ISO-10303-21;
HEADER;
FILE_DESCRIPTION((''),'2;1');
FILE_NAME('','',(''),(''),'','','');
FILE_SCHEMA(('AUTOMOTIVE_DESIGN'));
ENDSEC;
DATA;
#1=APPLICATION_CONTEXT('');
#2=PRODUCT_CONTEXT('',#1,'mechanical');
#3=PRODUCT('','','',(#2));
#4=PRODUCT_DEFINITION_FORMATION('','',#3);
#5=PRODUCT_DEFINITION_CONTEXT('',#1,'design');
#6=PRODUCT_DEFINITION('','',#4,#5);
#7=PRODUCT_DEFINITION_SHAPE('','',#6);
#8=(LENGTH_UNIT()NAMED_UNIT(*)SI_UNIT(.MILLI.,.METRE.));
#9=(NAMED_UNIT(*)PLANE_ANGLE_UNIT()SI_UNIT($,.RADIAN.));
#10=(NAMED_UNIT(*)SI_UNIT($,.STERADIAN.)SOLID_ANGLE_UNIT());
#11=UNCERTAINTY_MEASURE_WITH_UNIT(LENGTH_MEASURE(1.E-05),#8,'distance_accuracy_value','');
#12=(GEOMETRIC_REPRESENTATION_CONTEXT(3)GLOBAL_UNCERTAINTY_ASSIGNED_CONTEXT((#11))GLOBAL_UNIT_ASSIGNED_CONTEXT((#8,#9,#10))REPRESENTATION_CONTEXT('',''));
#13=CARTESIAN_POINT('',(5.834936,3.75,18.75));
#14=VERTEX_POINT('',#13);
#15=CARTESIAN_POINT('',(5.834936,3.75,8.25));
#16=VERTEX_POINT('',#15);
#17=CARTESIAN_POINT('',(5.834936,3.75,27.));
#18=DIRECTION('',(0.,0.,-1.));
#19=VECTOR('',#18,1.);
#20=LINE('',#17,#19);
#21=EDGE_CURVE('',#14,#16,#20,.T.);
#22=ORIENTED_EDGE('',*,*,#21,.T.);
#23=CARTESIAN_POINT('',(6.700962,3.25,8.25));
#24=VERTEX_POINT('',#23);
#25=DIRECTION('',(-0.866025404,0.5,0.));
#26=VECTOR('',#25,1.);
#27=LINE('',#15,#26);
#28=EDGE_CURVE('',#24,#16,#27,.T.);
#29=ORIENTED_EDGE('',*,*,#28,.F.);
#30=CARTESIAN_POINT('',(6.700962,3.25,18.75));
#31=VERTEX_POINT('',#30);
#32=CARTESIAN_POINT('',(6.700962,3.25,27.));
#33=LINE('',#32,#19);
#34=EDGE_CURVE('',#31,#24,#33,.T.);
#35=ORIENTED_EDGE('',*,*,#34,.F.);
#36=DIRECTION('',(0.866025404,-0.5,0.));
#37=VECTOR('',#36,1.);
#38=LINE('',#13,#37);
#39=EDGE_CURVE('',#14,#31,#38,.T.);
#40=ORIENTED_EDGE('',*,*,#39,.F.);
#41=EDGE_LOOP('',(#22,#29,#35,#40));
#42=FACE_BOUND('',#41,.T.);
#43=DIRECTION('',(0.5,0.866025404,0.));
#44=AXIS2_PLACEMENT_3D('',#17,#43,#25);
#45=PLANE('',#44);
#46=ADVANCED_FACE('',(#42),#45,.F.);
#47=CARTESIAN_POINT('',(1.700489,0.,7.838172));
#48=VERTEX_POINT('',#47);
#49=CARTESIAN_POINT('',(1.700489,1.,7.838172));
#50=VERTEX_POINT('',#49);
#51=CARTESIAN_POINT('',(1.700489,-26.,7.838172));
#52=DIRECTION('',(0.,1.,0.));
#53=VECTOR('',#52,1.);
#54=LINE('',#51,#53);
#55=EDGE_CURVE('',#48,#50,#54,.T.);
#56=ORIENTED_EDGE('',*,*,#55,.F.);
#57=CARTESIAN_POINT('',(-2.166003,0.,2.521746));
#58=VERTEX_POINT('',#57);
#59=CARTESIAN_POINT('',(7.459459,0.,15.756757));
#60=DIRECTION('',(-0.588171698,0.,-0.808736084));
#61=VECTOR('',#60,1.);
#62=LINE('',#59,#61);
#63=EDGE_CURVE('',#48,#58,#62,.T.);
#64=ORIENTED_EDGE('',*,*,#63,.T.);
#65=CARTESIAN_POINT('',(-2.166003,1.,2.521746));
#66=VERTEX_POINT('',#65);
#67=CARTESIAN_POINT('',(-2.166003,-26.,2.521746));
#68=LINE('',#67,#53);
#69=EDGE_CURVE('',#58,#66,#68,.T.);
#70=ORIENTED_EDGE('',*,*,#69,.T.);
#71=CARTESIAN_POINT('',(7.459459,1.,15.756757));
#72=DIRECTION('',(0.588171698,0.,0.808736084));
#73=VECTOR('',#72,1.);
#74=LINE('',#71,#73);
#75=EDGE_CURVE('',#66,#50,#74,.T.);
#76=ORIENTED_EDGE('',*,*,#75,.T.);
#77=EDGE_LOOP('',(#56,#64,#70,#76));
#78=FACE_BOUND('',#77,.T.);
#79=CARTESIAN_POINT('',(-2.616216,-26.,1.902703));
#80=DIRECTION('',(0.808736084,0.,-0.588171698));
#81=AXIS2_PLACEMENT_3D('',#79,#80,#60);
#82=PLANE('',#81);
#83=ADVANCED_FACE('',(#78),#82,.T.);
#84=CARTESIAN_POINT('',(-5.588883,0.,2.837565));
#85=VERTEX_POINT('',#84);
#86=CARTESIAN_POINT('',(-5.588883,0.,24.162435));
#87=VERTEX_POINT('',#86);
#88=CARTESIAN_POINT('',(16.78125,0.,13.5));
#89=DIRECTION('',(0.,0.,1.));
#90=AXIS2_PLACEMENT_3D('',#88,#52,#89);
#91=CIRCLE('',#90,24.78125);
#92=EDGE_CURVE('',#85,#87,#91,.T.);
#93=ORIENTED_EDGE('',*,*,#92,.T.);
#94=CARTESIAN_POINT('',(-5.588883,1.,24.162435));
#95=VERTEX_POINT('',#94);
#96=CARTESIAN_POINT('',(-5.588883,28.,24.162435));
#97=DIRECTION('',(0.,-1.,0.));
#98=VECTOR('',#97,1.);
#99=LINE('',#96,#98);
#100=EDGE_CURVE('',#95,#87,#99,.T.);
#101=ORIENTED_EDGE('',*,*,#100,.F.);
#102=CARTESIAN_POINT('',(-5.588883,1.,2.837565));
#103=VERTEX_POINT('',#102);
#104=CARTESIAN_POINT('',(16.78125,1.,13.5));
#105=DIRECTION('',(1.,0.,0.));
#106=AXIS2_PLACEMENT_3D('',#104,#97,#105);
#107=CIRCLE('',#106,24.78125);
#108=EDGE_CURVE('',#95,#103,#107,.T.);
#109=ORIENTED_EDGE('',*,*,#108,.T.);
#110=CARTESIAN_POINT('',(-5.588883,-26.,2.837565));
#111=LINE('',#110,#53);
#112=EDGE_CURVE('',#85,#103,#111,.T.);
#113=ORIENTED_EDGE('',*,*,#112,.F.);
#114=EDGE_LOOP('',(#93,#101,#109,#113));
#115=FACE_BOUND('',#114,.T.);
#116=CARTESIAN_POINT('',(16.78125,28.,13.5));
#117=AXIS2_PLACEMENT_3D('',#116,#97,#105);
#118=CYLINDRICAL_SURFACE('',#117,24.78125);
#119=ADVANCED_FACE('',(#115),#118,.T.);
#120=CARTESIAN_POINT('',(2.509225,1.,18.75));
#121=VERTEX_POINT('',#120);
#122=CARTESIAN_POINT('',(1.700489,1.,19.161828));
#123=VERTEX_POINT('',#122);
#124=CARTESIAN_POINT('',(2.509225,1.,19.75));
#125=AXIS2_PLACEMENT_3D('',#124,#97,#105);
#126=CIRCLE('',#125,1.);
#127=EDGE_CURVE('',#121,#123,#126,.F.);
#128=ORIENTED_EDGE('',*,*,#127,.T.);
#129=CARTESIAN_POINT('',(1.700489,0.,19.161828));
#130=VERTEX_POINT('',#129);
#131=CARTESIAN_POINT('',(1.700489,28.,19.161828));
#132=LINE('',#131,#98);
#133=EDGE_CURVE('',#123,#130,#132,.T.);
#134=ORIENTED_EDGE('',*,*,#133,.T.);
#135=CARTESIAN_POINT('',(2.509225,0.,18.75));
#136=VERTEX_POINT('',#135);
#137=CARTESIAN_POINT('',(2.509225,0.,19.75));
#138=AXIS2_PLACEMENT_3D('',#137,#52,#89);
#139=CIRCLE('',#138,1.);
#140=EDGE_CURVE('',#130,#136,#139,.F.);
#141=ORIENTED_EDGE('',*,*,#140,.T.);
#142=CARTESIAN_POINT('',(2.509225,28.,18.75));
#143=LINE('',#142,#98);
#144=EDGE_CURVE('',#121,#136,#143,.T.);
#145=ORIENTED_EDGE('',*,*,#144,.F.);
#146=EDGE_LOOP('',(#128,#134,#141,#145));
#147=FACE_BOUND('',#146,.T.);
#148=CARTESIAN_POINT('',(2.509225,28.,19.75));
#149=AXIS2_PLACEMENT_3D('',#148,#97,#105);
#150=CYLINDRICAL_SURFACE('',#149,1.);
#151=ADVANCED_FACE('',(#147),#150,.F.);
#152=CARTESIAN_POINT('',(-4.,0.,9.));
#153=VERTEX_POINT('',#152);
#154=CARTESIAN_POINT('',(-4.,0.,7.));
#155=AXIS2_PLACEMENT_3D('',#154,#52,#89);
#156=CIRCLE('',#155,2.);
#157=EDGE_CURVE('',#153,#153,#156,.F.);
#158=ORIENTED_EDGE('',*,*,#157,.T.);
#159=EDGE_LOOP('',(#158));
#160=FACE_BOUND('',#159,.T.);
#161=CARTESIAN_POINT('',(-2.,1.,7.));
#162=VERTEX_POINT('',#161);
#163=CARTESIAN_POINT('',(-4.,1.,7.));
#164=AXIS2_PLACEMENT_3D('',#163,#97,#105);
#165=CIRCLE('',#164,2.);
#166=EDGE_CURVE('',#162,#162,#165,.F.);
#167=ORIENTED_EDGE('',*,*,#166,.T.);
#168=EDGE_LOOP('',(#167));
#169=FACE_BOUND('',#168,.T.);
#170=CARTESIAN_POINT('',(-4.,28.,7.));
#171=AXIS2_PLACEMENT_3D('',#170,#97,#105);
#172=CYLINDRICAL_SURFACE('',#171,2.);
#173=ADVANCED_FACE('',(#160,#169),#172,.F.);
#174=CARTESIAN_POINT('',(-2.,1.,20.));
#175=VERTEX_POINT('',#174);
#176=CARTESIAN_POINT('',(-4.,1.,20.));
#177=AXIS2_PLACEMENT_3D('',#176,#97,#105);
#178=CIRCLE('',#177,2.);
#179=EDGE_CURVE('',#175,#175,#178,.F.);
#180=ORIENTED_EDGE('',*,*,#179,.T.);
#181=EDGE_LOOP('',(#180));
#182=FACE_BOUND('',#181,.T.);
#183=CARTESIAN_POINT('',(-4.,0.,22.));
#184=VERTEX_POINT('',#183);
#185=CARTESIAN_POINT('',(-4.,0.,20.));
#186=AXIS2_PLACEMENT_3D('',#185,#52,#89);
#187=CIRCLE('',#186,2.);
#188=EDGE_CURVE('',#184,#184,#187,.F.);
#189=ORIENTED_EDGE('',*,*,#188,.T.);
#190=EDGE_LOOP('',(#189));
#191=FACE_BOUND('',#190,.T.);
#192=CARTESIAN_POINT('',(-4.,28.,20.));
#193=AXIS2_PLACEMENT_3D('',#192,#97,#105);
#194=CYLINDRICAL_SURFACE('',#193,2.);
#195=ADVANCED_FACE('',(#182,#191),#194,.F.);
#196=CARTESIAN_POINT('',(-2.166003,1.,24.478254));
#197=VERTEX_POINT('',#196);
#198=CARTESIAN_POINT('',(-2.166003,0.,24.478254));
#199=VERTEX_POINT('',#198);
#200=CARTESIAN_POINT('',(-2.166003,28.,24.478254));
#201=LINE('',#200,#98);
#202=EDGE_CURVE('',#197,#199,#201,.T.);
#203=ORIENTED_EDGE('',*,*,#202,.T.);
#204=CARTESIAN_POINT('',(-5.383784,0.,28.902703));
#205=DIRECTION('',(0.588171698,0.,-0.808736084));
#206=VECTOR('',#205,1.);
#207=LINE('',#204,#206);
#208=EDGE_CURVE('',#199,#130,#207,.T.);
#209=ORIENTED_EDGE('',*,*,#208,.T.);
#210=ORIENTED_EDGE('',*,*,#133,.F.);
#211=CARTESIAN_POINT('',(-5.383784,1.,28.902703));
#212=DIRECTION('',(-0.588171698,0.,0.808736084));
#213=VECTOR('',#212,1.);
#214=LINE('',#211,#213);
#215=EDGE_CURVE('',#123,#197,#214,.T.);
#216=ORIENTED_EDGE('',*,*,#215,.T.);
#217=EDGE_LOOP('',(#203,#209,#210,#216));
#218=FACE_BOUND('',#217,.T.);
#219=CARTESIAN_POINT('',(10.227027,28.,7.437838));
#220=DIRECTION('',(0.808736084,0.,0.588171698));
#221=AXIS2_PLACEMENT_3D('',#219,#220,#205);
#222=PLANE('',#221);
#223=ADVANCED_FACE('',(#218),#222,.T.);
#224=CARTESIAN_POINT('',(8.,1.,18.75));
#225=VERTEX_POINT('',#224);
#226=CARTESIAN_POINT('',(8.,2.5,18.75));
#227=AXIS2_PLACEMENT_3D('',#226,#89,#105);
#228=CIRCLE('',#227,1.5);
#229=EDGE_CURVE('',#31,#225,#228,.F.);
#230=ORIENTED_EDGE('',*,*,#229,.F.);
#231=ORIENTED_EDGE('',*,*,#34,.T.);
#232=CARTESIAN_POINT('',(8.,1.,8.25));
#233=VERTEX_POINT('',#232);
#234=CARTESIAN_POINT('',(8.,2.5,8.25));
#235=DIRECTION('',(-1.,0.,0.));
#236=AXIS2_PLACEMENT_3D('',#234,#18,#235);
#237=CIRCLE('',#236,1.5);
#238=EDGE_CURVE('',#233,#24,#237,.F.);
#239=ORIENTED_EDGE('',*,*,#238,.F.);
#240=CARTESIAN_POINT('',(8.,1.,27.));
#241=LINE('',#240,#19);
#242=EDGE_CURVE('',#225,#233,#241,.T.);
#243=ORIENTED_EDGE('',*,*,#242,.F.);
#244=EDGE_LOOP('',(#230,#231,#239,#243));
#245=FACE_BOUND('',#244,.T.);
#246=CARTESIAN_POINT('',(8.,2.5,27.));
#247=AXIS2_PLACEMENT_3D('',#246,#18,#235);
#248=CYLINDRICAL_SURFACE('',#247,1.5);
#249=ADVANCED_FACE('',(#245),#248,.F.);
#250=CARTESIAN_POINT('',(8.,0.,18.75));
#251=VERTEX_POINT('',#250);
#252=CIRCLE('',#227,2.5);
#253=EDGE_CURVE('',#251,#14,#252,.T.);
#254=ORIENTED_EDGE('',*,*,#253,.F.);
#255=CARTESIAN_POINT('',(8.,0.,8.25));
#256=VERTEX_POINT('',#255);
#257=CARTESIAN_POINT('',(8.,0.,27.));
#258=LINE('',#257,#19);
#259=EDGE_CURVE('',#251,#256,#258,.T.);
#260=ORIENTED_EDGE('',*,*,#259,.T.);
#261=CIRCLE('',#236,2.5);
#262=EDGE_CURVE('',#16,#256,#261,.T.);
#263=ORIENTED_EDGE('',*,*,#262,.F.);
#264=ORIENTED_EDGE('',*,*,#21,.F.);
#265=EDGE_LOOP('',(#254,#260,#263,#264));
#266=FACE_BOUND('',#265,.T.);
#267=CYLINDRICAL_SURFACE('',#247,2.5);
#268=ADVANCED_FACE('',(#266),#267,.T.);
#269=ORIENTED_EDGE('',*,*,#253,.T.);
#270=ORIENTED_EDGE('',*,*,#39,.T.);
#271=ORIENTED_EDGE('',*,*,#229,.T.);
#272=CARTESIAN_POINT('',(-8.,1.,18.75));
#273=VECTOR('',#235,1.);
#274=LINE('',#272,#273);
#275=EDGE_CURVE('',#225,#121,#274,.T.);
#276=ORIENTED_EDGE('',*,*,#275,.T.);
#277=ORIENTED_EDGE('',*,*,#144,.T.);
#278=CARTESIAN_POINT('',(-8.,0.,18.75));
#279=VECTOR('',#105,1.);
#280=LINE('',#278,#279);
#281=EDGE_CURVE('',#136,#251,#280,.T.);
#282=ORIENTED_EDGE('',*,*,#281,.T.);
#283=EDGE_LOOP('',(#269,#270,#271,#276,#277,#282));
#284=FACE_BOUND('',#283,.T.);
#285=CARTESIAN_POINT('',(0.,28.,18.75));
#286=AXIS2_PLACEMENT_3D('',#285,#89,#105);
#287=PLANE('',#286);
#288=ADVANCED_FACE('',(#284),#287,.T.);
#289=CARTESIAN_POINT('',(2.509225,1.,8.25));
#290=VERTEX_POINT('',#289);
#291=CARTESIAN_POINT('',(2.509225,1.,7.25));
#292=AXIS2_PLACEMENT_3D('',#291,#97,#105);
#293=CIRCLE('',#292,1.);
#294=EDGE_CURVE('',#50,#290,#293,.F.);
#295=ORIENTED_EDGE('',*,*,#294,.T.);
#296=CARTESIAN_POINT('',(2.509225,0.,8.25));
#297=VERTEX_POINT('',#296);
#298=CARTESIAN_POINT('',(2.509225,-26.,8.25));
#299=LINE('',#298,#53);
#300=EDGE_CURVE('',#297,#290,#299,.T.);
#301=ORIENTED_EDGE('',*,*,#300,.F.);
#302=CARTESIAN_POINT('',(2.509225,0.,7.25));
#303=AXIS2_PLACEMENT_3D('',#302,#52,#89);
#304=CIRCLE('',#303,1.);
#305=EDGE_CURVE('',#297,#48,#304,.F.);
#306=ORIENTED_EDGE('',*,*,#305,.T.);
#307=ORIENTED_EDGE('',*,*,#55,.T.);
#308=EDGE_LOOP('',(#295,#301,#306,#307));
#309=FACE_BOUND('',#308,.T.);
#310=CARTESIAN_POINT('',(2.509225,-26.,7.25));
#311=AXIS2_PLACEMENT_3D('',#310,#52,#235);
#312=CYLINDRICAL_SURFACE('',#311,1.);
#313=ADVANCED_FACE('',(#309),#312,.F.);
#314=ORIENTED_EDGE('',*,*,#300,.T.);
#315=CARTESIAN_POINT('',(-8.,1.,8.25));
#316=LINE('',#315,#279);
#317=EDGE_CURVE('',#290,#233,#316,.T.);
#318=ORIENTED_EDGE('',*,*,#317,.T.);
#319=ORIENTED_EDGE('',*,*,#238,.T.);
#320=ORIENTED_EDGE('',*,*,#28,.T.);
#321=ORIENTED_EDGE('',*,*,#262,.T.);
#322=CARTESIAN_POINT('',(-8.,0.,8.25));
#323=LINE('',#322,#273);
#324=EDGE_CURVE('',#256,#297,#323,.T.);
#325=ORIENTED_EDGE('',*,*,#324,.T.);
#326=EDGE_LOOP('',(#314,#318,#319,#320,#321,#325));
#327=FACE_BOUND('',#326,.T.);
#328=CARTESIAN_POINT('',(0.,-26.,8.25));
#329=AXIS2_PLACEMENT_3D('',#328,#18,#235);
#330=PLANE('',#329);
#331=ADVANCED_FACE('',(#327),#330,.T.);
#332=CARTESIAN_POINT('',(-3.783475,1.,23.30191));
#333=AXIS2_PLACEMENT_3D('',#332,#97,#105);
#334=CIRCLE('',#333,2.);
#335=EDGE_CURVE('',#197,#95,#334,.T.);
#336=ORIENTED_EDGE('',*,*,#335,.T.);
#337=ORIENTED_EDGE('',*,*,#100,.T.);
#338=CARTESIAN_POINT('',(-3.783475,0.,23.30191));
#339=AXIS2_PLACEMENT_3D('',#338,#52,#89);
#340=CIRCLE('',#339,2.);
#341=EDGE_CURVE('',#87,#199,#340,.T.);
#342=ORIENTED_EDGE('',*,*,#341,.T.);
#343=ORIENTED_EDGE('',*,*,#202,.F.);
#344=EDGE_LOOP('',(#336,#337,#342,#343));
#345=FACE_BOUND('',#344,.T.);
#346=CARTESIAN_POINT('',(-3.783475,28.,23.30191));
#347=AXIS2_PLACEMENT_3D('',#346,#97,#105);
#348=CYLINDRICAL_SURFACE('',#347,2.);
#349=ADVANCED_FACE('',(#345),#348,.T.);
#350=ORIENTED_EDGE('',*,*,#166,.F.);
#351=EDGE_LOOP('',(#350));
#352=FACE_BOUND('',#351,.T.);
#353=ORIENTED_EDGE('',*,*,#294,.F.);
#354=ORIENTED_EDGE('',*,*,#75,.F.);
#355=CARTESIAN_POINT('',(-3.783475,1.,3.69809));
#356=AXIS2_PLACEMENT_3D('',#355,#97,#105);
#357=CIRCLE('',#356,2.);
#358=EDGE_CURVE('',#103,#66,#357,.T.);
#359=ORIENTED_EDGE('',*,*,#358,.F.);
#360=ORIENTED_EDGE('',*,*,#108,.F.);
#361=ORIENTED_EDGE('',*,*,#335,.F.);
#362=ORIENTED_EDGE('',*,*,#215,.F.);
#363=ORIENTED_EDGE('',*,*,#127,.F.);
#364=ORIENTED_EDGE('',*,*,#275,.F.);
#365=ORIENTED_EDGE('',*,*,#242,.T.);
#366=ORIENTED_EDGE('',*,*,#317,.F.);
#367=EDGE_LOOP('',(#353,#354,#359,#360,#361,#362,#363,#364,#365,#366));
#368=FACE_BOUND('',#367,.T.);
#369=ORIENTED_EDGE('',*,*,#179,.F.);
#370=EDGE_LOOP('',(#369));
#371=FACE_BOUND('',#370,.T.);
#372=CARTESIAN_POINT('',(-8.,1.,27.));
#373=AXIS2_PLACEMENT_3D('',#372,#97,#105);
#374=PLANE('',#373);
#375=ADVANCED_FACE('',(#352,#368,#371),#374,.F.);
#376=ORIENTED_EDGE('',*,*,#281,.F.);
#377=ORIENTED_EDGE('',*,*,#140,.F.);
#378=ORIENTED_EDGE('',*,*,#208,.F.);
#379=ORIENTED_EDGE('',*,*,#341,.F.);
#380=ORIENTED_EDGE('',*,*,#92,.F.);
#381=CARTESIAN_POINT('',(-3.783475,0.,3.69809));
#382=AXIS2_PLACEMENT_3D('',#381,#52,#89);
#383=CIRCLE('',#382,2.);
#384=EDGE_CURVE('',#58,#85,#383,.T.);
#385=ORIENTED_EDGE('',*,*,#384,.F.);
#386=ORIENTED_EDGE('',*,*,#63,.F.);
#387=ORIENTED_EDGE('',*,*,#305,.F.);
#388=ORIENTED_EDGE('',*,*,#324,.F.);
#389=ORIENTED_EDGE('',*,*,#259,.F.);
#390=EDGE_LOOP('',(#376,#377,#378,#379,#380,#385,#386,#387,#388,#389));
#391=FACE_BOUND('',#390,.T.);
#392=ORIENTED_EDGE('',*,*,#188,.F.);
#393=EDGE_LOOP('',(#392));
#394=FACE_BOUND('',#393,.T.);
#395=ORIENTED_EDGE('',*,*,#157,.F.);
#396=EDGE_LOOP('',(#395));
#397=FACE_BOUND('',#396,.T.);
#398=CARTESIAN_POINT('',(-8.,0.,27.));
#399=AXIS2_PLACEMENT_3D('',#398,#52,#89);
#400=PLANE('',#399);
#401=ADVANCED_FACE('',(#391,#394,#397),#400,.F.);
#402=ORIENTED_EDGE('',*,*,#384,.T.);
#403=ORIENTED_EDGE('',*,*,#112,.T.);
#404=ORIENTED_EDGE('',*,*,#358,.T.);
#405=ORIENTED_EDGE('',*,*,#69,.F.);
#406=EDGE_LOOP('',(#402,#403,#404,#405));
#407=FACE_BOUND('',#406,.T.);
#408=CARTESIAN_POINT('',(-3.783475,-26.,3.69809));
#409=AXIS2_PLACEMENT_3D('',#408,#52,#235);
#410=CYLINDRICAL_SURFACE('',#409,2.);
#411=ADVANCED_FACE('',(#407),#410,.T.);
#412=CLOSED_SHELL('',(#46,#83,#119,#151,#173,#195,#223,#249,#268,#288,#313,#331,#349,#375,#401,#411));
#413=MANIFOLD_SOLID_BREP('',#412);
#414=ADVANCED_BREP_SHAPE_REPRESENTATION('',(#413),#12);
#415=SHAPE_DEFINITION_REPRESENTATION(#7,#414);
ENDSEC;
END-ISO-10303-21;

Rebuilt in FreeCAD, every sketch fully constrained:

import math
import FreeCAD as App
import Part
import Sketcher
from FreeCAD import Vector
Q = App.Units.Quantity

doc = App.newDocument("Part")
body = doc.addObject("PartDesign::Body", "Body")

# Sketch on XY plane
sketch1 = doc.addObject("Sketcher::SketchObject", "Sketch")
body.addObject(sketch1)
sketch1.AttachmentSupport = (doc.XY_Plane, [""])
sketch1.MapMode = "FlatFace"
sketch1.addGeometry([
    Part.LineSegment(Vector(8, 1, 0), Vector(-8, 1, 0)),  # 0
    Part.LineSegment(Vector(-8, 1, 0), Vector(-8, 0, 0)),  # 1
    Part.LineSegment(Vector(-8, 0, 0), Vector(8, 0, 0)),  # 2
    Part.ArcOfCircle(Part.Circle(Vector(8, 2.5, 0), Vector(0, 0, 1), 2.5), math.radians(-90), math.radians(150)),  # 3
    Part.LineSegment(Vector(5.834936, 3.75, 0), Vector(6.700962, 3.25, 0)),  # 4
    Part.ArcOfCircle(Part.Circle(Vector(8, 2.5, 0), Vector(0, 0, 1), 1.5), math.radians(-90), math.radians(150)),  # 5
], False)
sketch1.addConstraint([
    Sketcher.Constraint("Coincident", 0, 2, 1, 1),
    Sketcher.Constraint("Coincident", 1, 2, 2, 1),
    Sketcher.Constraint("Tangent", 2, 2, 3, 1),
    Sketcher.Constraint("Coincident", 3, 2, 4, 1),
    Sketcher.Constraint("Coincident", 4, 2, 5, 2),
    Sketcher.Constraint("Tangent", 5, 1, 0, 1),
    Sketcher.Constraint("Horizontal", 0),
    Sketcher.Constraint("Vertical", 1),
    Sketcher.Constraint("Horizontal", 2),
    Sketcher.Constraint("Coincident", 5, 3, 3, 3),
    Sketcher.Constraint("Symmetric", 1, 2, 2, 2, -1, 1),
    Sketcher.Constraint("Radius", 3, 2.5),
    Sketcher.Constraint("Radius", 5, 1.5),
    Sketcher.Constraint("DistanceX", 0, 2, 0, 1, 16.0),
    Sketcher.Constraint("Angle", 4, Q("-30 deg")),
    Sketcher.Constraint("DistanceY", -1, 1, 3, 2, 3.75),
])
pad1 = doc.addObject("PartDesign::Pad", "Pad")
body.addObject(pad1)
pad1.Profile = sketch1
pad1.Length = 27

# Sketch on XZ plane
sketch2 = doc.addObject("Sketcher::SketchObject", "Sketch001")
body.addObject(sketch2)
sketch2.AttachmentSupport = (doc.XZ_Plane, [""])
sketch2.MapMode = "FlatFace"
sketch2.AttachmentOffset = App.Placement(Vector(0, 0, -1), App.Rotation())
sketch2.addGeometry([
    Part.ArcOfCircle(Part.Circle(Vector(2.509225, 19.75, 0), Vector(0, 0, 1), 1), math.radians(-143.972626), math.radians(-90)),  # 0
    Part.LineSegment(Vector(1.700489, 19.161828, 0), Vector(-2.166003, 24.478254, 0)),  # 1
    Part.ArcOfCircle(Part.Circle(Vector(-3.783475, 23.30191, 0), Vector(0, 0, 1), 2), math.radians(36.027373), math.radians(154.5158)),  # 2
    Part.ArcOfCircle(Part.Circle(Vector(16.78125, 13.5, 0), Vector(0, 0, 1), 24.78125), math.radians(154.5158), math.radians(180)),  # 3
    Part.LineSegment(Vector(-8, 13.5, 0), Vector(-8, 27, 0)),  # 4
    Part.LineSegment(Vector(-8, 27, 0), Vector(12, 27, 0)),  # 5
    Part.LineSegment(Vector(12, 27, 0), Vector(12, 18.75, 0)),  # 6
    Part.LineSegment(Vector(12, 18.75, 0), Vector(2.509225, 18.75, 0)),  # 7
    Part.LineSegment(Vector(2.509225, 8.25, 0), Vector(12, 8.25, 0)),  # 8
    Part.LineSegment(Vector(12, 8.25, 0), Vector(12, 0, 0)),  # 9
    Part.LineSegment(Vector(12, 0, 0), Vector(-8, 0, 0)),  # 10
    Part.LineSegment(Vector(-8, 0, 0), Vector(-8, 13.5, 0)),  # 11
    Part.ArcOfCircle(Part.Circle(Vector(16.78125, 13.5, 0), Vector(0, 0, 1), 24.78125), math.radians(-180), math.radians(-154.5158)),  # 12
    Part.ArcOfCircle(Part.Circle(Vector(-3.783475, 3.69809, 0), Vector(0, 0, 1), 2), math.radians(-154.5158), math.radians(-36.027373)),  # 13
    Part.LineSegment(Vector(-2.166003, 2.521746, 0), Vector(1.700489, 7.838172, 0)),  # 14
    Part.ArcOfCircle(Part.Circle(Vector(2.509225, 7.25, 0), Vector(0, 0, 1), 1), math.radians(90), math.radians(143.972626)),  # 15
    Part.Circle(Vector(-4, 20, 0), Vector(0, 0, 1), 2),  # 16
    Part.Circle(Vector(-4, 7, 0), Vector(0, 0, 1), 2),  # 17
], False)
sketch2.addConstraint([
    Sketcher.Constraint("Tangent", 0, 1, 1, 1),
    Sketcher.Constraint("Tangent", 1, 2, 2, 1),
    Sketcher.Constraint("Tangent", 2, 2, 3, 1),
    Sketcher.Constraint("Tangent", 3, 2, 4, 1),
    Sketcher.Constraint("Coincident", 4, 2, 5, 1),
    Sketcher.Constraint("Coincident", 5, 2, 6, 1),
    Sketcher.Constraint("Coincident", 6, 2, 7, 1),
    Sketcher.Constraint("Tangent", 7, 2, 0, 2),
    Sketcher.Constraint("Coincident", 8, 2, 9, 1),
    Sketcher.Constraint("Coincident", 9, 2, 10, 1),
    Sketcher.Constraint("Coincident", 10, 2, 11, 1),
    Sketcher.Constraint("Tangent", 11, 2, 12, 1),
    Sketcher.Constraint("Tangent", 12, 2, 13, 1),
    Sketcher.Constraint("Tangent", 13, 2, 14, 1),
    Sketcher.Constraint("Tangent", 14, 2, 15, 2),
    Sketcher.Constraint("Tangent", 15, 1, 8, 1),
    Sketcher.Constraint("Vertical", 4),
    Sketcher.Constraint("Horizontal", 5),
    Sketcher.Constraint("Vertical", 6),
    Sketcher.Constraint("Horizontal", 7),
    Sketcher.Constraint("Horizontal", 8),
    Sketcher.Constraint("Vertical", 9),
    Sketcher.Constraint("Horizontal", 10),
    Sketcher.Constraint("Vertical", 11),
    Sketcher.Constraint("Coincident", 12, 3, 3, 3),
    Sketcher.Constraint("Equal", 3, 12),
    Sketcher.Constraint("Equal", 2, 13),
    Sketcher.Constraint("Equal", 0, 15),
    Sketcher.Constraint("Equal", 13, 16),
    Sketcher.Constraint("Equal", 16, 17),
    Sketcher.Constraint("PointOnObject", 9, 2, -1),
    Sketcher.Constraint("Vertical", 2, 3, 13, 3),
    Sketcher.Constraint("Vertical", 0, 3, 15, 3),
    Sketcher.Constraint("Vertical", 16, 3, 17, 3),
    Sketcher.Constraint("Vertical", 6, 2, 8, 2),
    Sketcher.Constraint("Vertical", 1, 2, 13, 2),
    Sketcher.Constraint("Equal", 6, 9),
    Sketcher.Constraint("Diameter", 16, 4.0),
    Sketcher.Constraint("Radius", 0, 1.0),
    Sketcher.Constraint("DistanceX", 5, 1, 5, 2, 20.0),
    Sketcher.Constraint("DistanceY", 4, 1, 4, 2, 13.5),
    Sketcher.Constraint("DistanceX", 16, 3, -1, 1, 4.0),
    Sketcher.Constraint("DistanceY", -1, 1, 16, 3, 20.0),
    Sketcher.Constraint("DistanceY", -1, 1, 17, 3, 7.0),
    Sketcher.Constraint("DistanceX", 3, 2, -1, 1, 8.0),
    Sketcher.Constraint("DistanceY", 6, 2, 6, 1, 8.25),
    Sketcher.Constraint("Radius", 3, 24.78125),
    Sketcher.Constraint("DistanceX", 2, 3, 0, 3, 6.292699),
    Sketcher.Constraint("DistanceX", 7, 2, 7, 1, 9.490775),
])
pocket1 = doc.addObject("PartDesign::Pocket", "Pocket")
body.addObject(pocket1)
pocket1.Profile = sketch2
pocket1.Type = "ThroughAll"
pocket1.Midplane = True

doc.recompute()
